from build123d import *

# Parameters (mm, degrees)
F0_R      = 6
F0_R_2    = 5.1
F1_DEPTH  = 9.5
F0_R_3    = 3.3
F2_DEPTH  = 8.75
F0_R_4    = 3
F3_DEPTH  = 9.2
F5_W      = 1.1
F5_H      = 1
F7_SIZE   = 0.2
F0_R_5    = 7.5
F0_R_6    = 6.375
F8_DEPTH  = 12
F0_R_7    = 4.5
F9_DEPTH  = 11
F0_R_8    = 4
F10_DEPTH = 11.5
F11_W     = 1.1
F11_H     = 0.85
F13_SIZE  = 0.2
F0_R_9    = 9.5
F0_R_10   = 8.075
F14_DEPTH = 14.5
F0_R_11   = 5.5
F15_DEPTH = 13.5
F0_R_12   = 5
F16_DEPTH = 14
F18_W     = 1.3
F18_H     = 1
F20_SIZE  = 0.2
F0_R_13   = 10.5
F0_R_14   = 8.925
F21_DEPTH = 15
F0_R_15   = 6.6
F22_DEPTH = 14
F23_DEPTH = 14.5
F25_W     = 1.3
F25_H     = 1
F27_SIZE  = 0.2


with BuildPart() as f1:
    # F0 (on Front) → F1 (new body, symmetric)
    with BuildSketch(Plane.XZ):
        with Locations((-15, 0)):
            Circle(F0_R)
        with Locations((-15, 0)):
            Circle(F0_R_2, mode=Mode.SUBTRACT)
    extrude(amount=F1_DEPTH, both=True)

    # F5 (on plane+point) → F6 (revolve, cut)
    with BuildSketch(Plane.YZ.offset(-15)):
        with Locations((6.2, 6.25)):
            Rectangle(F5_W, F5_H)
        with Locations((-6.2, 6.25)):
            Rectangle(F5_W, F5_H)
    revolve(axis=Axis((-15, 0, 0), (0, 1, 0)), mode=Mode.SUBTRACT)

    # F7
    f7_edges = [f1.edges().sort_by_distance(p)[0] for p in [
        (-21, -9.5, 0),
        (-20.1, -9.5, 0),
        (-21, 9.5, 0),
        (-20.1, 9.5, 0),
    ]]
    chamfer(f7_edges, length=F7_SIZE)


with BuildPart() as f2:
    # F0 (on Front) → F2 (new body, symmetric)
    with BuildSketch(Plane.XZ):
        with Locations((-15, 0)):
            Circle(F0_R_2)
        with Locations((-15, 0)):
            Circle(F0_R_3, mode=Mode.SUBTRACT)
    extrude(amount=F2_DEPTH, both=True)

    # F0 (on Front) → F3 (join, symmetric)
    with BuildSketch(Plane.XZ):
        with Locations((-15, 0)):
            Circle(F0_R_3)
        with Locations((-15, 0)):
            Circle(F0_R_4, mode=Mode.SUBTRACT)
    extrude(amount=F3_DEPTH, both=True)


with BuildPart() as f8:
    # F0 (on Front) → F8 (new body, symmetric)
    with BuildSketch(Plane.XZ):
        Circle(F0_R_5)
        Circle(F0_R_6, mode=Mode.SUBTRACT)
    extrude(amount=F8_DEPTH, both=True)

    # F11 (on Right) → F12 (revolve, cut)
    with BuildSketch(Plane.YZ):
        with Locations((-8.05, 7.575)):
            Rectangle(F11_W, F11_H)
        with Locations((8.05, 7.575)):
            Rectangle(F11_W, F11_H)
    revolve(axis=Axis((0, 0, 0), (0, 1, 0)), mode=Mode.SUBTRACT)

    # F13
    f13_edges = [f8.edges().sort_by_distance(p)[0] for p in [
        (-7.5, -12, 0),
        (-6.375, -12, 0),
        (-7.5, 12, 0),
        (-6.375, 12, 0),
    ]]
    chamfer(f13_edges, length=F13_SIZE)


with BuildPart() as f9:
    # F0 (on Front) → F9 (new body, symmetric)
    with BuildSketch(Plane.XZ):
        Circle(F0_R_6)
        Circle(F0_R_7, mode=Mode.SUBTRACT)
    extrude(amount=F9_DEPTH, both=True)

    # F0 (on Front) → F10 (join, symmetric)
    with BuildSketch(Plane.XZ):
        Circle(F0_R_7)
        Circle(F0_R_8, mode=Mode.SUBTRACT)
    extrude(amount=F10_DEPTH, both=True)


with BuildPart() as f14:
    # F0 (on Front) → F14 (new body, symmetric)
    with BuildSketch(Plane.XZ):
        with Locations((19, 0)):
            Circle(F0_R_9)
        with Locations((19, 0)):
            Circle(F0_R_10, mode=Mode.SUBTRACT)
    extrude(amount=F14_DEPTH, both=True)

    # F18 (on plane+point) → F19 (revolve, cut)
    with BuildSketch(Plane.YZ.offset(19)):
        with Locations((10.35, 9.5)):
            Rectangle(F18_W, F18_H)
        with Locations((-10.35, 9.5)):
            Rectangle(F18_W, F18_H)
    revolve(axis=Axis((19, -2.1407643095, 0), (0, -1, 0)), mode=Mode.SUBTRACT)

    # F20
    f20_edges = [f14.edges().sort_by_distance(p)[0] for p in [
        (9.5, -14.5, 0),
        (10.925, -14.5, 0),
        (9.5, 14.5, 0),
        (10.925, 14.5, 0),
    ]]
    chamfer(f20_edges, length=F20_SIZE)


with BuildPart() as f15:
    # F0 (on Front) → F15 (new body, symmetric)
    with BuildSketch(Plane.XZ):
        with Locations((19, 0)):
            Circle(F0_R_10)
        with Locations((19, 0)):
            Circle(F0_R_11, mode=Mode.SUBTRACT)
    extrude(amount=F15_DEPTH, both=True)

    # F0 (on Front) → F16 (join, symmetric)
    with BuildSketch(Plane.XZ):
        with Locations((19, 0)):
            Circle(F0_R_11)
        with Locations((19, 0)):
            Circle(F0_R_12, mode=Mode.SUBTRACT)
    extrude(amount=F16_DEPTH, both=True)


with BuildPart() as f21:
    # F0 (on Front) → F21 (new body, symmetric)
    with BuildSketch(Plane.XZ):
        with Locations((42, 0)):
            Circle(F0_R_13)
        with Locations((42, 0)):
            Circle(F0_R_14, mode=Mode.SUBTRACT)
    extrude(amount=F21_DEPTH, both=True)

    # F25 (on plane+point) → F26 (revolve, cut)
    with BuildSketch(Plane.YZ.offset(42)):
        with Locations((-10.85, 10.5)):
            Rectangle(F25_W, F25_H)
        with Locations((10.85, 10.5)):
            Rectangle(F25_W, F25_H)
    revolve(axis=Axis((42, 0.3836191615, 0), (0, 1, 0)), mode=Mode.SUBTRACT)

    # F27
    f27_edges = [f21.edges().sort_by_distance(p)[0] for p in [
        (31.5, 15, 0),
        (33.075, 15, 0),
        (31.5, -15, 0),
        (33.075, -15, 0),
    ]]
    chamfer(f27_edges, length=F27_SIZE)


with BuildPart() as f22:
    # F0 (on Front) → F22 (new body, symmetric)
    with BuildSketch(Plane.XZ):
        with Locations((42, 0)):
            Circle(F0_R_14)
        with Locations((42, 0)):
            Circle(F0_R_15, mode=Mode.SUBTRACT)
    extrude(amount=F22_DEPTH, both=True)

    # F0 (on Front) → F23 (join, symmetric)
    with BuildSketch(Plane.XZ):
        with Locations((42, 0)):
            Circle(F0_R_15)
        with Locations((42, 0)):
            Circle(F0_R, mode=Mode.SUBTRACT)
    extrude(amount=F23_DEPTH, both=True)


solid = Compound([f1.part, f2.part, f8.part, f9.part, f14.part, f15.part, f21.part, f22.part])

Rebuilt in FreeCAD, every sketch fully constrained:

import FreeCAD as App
import Part
import Sketcher


def edges_at(feature, points):
    """Names of the edges that pass closest to the given points."""
    edges = feature.Shape.Edges
    near = lambda p: min(range(len(edges)), key=lambda i: edges[i].distToShape(Part.Vertex(*p))[0])
    return sorted({f"Edge{near(p) + 1}" for p in points})


def add_polygon(sketch, points):
    """Adds a closed chain of lines whose ends are joined by coincident constraints."""
    first, n = sketch.GeometryCount, len(points)
    for a, b in zip(points, points[1:] + points[:1]):
        sketch.addGeometry(Part.LineSegment(App.Vector(*a, 0), App.Vector(*b, 0)), False)
    for i in range(n):
        sketch.addConstraint(Sketcher.Constraint("Coincident", first + i, 2, first + (i + 1) % n, 1))

doc = App.newDocument("Part")
body = doc.addObject("PartDesign::Body", "Body")

# Sketch on XZ plane
sketch1 = doc.addObject("Sketcher::SketchObject", "Sketch")
body.addObject(sketch1)
sketch1.AttachmentSupport = (doc.XZ_Plane, [""])
sketch1.MapMode = "FlatFace"
sketch1.addGeometry(Part.Circle(App.Vector(-15, 0, 0), App.Vector(0, 0, 1), 6), False)
sketch1.addGeometry(Part.Circle(App.Vector(-15, 0, 0), App.Vector(0, 0, 1), 5), False)
sketch1.addConstraint(Sketcher.Constraint("Coincident", 1, 3, 0, 3))
sketch1.addConstraint(Sketcher.Constraint("PointOnObject", 0, 3, -1))
sketch1.addConstraint(Sketcher.Constraint("Diameter", 0, 12.0))
sketch1.addConstraint(Sketcher.Constraint("Diameter", 1, 10.2))
sketch1.addConstraint(Sketcher.Constraint("DistanceX", 0, 3, -1, 1, 15.0))
pad1 = doc.addObject("PartDesign::Pad", "Pad")
body.addObject(pad1)
pad1.Profile = sketch1
pad1.Length = 19
pad1.Midplane = True

# Sketch on YZ plane
sketch2 = doc.addObject("Sketcher::SketchObject", "Sketch001")
body.addObject(sketch2)
sketch2.AttachmentSupport = (doc.YZ_Plane, [""])
sketch2.MapMode = "FlatFace"
sketch2.AttachmentOffset = App.Placement(App.Vector(0, 0, -15), App.Rotation())
add_polygon(sketch2, [(5.7, 6.8), (5.7, 5.8), (6.8, 5.8), (6.8, 6.8)])  # lines 0-3
add_polygon(sketch2, [(-6.8, 6.8), (-6.8, 5.8), (-5.7, 5.8), (-5.7, 6.8)])  # lines 4-7
sketch2.addConstraint(Sketcher.Constraint("Vertical", 0))
sketch2.addConstraint(Sketcher.Constraint("Horizontal", 1))
sketch2.addConstraint(Sketcher.Constraint("Vertical", 2))
sketch2.addConstraint(Sketcher.Constraint("Horizontal", 3))
sketch2.addConstraint(Sketcher.Constraint("Vertical", 4))
sketch2.addConstraint(Sketcher.Constraint("Horizontal", 5))
sketch2.addConstraint(Sketcher.Constraint("Vertical", 6))
sketch2.addConstraint(Sketcher.Constraint("Horizontal", 7))
sketch2.addConstraint(Sketcher.Constraint("Symmetric", 1, 2, 4, 2, -2))
sketch2.addConstraint(Sketcher.Constraint("Symmetric", 3, 2, 6, 2, -2))
sketch2.addConstraint(Sketcher.Constraint("DistanceY", 0, 2, 0, 1, 1.0))
sketch2.addConstraint(Sketcher.Constraint("DistanceX", 1, 1, 1, 2, 1.1))
sketch2.addConstraint(Sketcher.Constraint("DistanceX", 4, 2, 0, 2, 12.4))
sketch2.addConstraint(Sketcher.Constraint("DistanceY", -1, 1, 0, 2, 5.75))
groove = doc.addObject("PartDesign::Groove", "Groove")
body.addObject(groove)
groove.Profile = sketch2
groove.ReferenceAxis = (sketch2, ["H_Axis"])
groove.Angle = 360
doc.recompute()

chamfer = doc.addObject("PartDesign::Chamfer", "Chamfer")
body.addObject(chamfer)
chamfer.Base = (groove, edges_at(groove, [
    (-21, -9.5, 0),
    (-20.1, -9.5, 0),
    (-21, 9.5, 0),
    (-20.1, 9.5, 0),
]))
chamfer.Size = 0.2
body2 = doc.addObject("PartDesign::Body", "Body001")

# Sketch on XZ plane
sketch3 = doc.addObject("Sketcher::SketchObject", "Sketch002")
body2.addObject(sketch3)
sketch3.AttachmentSupport = (doc.getObject("XZ_Plane001"), [""])
sketch3.MapMode = "FlatFace"
sketch3.addGeometry(Part.Circle(App.Vector(-15, 0, 0), App.Vector(0, 0, 1), 5.1), False)
sketch3.addGeometry(Part.Circle(App.Vector(-15, 0, 0), App.Vector(0, 0, 1), 3.3), False)
sketch3.addConstraint(Sketcher.Constraint("Coincident", 1, 3, 0, 3))
sketch3.addConstraint(Sketcher.Constraint("PointOnObject", 0, 3, -1))
sketch3.addConstraint(Sketcher.Constraint("Diameter", 0, 10.2))
sketch3.addConstraint(Sketcher.Constraint("Diameter", 1, 6.6))
sketch3.addConstraint(Sketcher.Constraint("DistanceX", 0, 3, -1, 1, 15.0))
pad2 = doc.addObject("PartDesign::Pad", "Pad001")
body2.addObject(pad2)
pad2.Profile = sketch3
pad2.Length = 17.5
pad2.Midplane = True

# Sketch on XZ plane
sketch4 = doc.addObject("Sketcher::SketchObject", "Sketch003")
body2.addObject(sketch4)
sketch4.AttachmentSupport = (doc.getObject("XZ_Plane001"), [""])
sketch4.MapMode = "FlatFace"
sketch4.addGeometry(Part.Circle(App.Vector(-15, 0, 0), App.Vector(0, 0, 1), 3.3), False)
sketch4.addGeometry(Part.Circle(App.Vector(-15, 0, 0), App.Vector(0, 0, 1), 3), False)
sketch4.addConstraint(Sketcher.Constraint("Coincident", 1, 3, 0, 3))
sketch4.addConstraint(Sketcher.Constraint("PointOnObject", 0, 3, -1))
sketch4.addConstraint(Sketcher.Constraint("Diameter", 1, 6.0))
sketch4.addConstraint(Sketcher.Constraint("Diameter", 0, 6.6))
sketch4.addConstraint(Sketcher.Constraint("DistanceX", 0, 3, -1, 1, 15.0))
pad3 = doc.addObject("PartDesign::Pad", "Pad002")
body2.addObject(pad3)
pad3.Profile = sketch4
pad3.Length = 18.4
pad3.Midplane = True
body3 = doc.addObject("PartDesign::Body", "Body002")

# Sketch on XZ plane
sketch5 = doc.addObject("Sketcher::SketchObject", "Sketch004")
body3.addObject(sketch5)
sketch5.AttachmentSupport = (doc.getObject("XZ_Plane002"), [""])
sketch5.MapMode = "FlatFace"
sketch5.addGeometry(Part.Circle(App.Vector(0, 0, 0), App.Vector(0, 0, 1), 8), False)
sketch5.addGeometry(Part.Circle(App.Vector(0, 0, 0), App.Vector(0, 0, 1), 6), False)
sketch5.addConstraint(Sketcher.Constraint("Coincident", 0, 3, -1, 1))
sketch5.addConstraint(Sketcher.Constraint("Coincident", 1, 3, -1, 1))
sketch5.addConstraint(Sketcher.Constraint("Diameter", 0, 15.0))
sketch5.addConstraint(Sketcher.Constraint("Diameter", 1, 12.75))
pad4 = doc.addObject("PartDesign::Pad", "Pad003")
body3.addObject(pad4)
pad4.Profile = sketch5
pad4.Length = 24
pad4.Midplane = True

# Sketch on YZ plane
sketch6 = doc.addObject("Sketcher::SketchObject", "Sketch005")
body3.addObject(sketch6)
sketch6.AttachmentSupport = (doc.getObject("YZ_Plane002"), [""])
sketch6.MapMode = "FlatFace"
add_polygon(sketch6, [(-8.6, 8), (-8.6, 7.2), (-7.5, 7.2), (-7.5, 8)])  # lines 0-3
add_polygon(sketch6, [(7.5, 8), (7.5, 7.2), (8.6, 7.2), (8.6, 8)])  # lines 4-7
sketch6.addConstraint(Sketcher.Constraint("Vertical", 0))
sketch6.addConstraint(Sketcher.Constraint("Horizontal", 1))
sketch6.addConstraint(Sketcher.Constraint("Vertical", 2))
sketch6.addConstraint(Sketcher.Constraint("Horizontal", 3))
sketch6.addConstraint(Sketcher.Constraint("Vertical", 4))
sketch6.addConstraint(Sketcher.Constraint("Horizontal", 5))
sketch6.addConstraint(Sketcher.Constraint("Vertical", 6))
sketch6.addConstraint(Sketcher.Constraint("Horizontal", 7))
sketch6.addConstraint(Sketcher.Constraint("Symmetric", 1, 2, 4, 2, -2))
sketch6.addConstraint(Sketcher.Constraint("Symmetric", 3, 2, 6, 2, -2))
sketch6.addConstraint(Sketcher.Constraint("DistanceX", 1, 1, 1, 2, 1.1))
sketch6.addConstraint(Sketcher.Constraint("DistanceY", -1, 1, 2, 2, 8.0))
sketch6.addConstraint(Sketcher.Constraint("DistanceX", 1, 2, 4, 2, 15.0))
sketch6.addConstraint(Sketcher.Constraint("DistanceY", 0, 2, 0, 1, 0.85))
groove2 = doc.addObject("PartDesign::Groove", "Groove001")
body3.addObject(groove2)
groove2.Profile = sketch6
groove2.ReferenceAxis = (sketch6, ["H_Axis"])
groove2.Angle = 360
doc.recompute()

chamfer2 = doc.addObject("PartDesign::Chamfer", "Chamfer001")
body3.addObject(chamfer2)
chamfer2.Base = (groove2, edges_at(groove2, [
    (-7.5, -12, 0),
    (-6.375, -12, 0),
    (-7.5, 12, 0),
    (-6.375, 12, 0),
]))
chamfer2.Size = 0.2
body4 = doc.addObject("PartDesign::Body", "Body003")

# Sketch on XZ plane
sketch7 = doc.addObject("Sketcher::SketchObject", "Sketch006")
body4.addObject(sketch7)
sketch7.AttachmentSupport = (doc.getObject("XZ_Plane003"), [""])
sketch7.MapMode = "FlatFace"
sketch7.addGeometry(Part.Circle(App.Vector(0, 0, 0), App.Vector(0, 0, 1), 6.4), False)
sketch7.addGeometry(Part.Circle(App.Vector(0, 0, 0), App.Vector(0, 0, 1), 4.5), False)
sketch7.addConstraint(Sketcher.Constraint("Coincident", 0, 3, -1, 1))
sketch7.addConstraint(Sketcher.Constraint("Coincident", 1, 3, -1, 1))
sketch7.addConstraint(Sketcher.Constraint("Diameter", 1, 9.0))
sketch7.addConstraint(Sketcher.Constraint("Diameter", 0, 12.75))
pad5 = doc.addObject("PartDesign::Pad", "Pad004")
body4.addObject(pad5)
pad5.Profile = sketch7
pad5.Length = 22
pad5.Midplane = True

# Sketch on XZ plane
sketch8 = doc.addObject("Sketcher::SketchObject", "Sketch007")
body4.addObject(sketch8)
sketch8.AttachmentSupport = (doc.getObject("XZ_Plane003"), [""])
sketch8.MapMode = "FlatFace"
sketch8.addGeometry(Part.Circle(App.Vector(0, 0, 0), App.Vector(0, 0, 1), 4.5), False)
sketch8.addGeometry(Part.Circle(App.Vector(0, 0, 0), App.Vector(0, 0, 1), 4), False)
sketch8.addConstraint(Sketcher.Constraint("Coincident", 0, 3, -1, 1))
sketch8.addConstraint(Sketcher.Constraint("Coincident", 1, 3, -1, 1))
sketch8.addConstraint(Sketcher.Constraint("Diameter", 0, 9.0))
sketch8.addConstraint(Sketcher.Constraint("Diameter", 1, 8.0))
pad6 = doc.addObject("PartDesign::Pad", "Pad005")
body4.addObject(pad6)
pad6.Profile = sketch8
pad6.Length = 23
pad6.Midplane = True
body5 = doc.addObject("PartDesign::Body", "Body004")

# Sketch on XZ plane
sketch9 = doc.addObject("Sketcher::SketchObject", "Sketch008")
body5.addObject(sketch9)
sketch9.AttachmentSupport = (doc.getObject("XZ_Plane004"), [""])
sketch9.MapMode = "FlatFace"
sketch9.addGeometry(Part.Circle(App.Vector(19, 0, 0), App.Vector(0, 0, 1), 10), False)
sketch9.addGeometry(Part.Circle(App.Vector(19, 0, 0), App.Vector(0, 0, 1), 8), False)
sketch9.addConstraint(Sketcher.Constraint("Coincident", 1, 3, 0, 3))
sketch9.addConstraint(Sketcher.Constraint("PointOnObject", 0, 3, -1))
sketch9.addConstraint(Sketcher.Constraint("Diameter", 0, 19.0))
sketch9.addConstraint(Sketcher.Constraint("Diameter", 1, 16.15))
sketch9.addConstraint(Sketcher.Constraint("DistanceX", -1, 1, 0, 3, 19.0))
pad7 = doc.addObject("PartDesign::Pad", "Pad006")
body5.addObject(pad7)
pad7.Profile = sketch9
pad7.Length = 29
pad7.Midplane = True

# Sketch on YZ plane
sketch10 = doc.addObject("Sketcher::SketchObject", "Sketch009")
body5.addObject(sketch10)
sketch10.AttachmentSupport = (doc.getObject("YZ_Plane004"), [""])
sketch10.MapMode = "FlatFace"
sketch10.AttachmentOffset = App.Placement(App.Vector(0, 0, 19), App.Rotation())
add_polygon(sketch10, [(9.7, 10), (9.7, 9), (11, 9), (11, 10)])  # lines 0-3
add_polygon(sketch10, [(-11, 10), (-11, 9), (-9.7, 9), (-9.7, 10)])  # lines 4-7
sketch10.addConstraint(Sketcher.Constraint("Vertical", 0))
sketch10.addConstraint(Sketcher.Constraint("Horizontal", 1))
sketch10.addConstraint(Sketcher.Constraint("Vertical", 2))
sketch10.addConstraint(Sketcher.Constraint("Horizontal", 3))
sketch10.addConstraint(Sketcher.Constraint("Vertical", 4))
sketch10.addConstraint(Sketcher.Constraint("Horizontal", 5))
sketch10.addConstraint(Sketcher.Constraint("Vertical", 6))
sketch10.addConstraint(Sketcher.Constraint("Horizontal", 7))
sketch10.addConstraint(Sketcher.Constraint("Symmetric", 1, 2, 4, 2, -2))
sketch10.addConstraint(Sketcher.Constraint("Symmetric", 3, 2, 6, 2, -2))
sketch10.addConstraint(Sketcher.Constraint("DistanceY", 0, 2, 0, 1, 1.0))
sketch10.addConstraint(Sketcher.Constraint("DistanceX", 1, 1, 1, 2, 1.3))
sketch10.addConstraint(Sketcher.Constraint("DistanceY", -1, 1, 0, 2, 9.0))
sketch10.addConstraint(Sketcher.Constraint("DistanceX", -1, 1, 1, 2, 11.0))
groove3 = doc.addObject("PartDesign::Groove", "Groove002")
body5.addObject(groove3)
groove3.Profile = sketch10
groove3.ReferenceAxis = (sketch10, ["H_Axis"])
groove3.Angle = 360
doc.recompute()

chamfer3 = doc.addObject("PartDesign::Chamfer", "Chamfer002")
body5.addObject(chamfer3)
chamfer3.Base = (groove3, edges_at(groove3, [
    (9.5, -14.5, 0),
    (10.925, -14.5, 0),
    (9.5, 14.5, 0),
    (10.925, 14.5, 0),
]))
chamfer3.Size = 0.2
body6 = doc.addObject("PartDesign::Body", "Body005")

# Sketch on XZ plane
sketch11 = doc.addObject("Sketcher::SketchObject", "Sketch010")
body6.addObject(sketch11)
sketch11.AttachmentSupport = (doc.getObject("XZ_Plane005"), [""])
sketch11.MapMode = "FlatFace"
sketch11.addGeometry(Part.Circle(App.Vector(19, 0, 0), App.Vector(0, 0, 1), 8), False)
sketch11.addGeometry(Part.Circle(App.Vector(19, 0, 0), App.Vector(0, 0, 1), 6), False)
sketch11.addConstraint(Sketcher.Constraint("Coincident", 1, 3, 0, 3))
sketch11.addConstraint(Sketcher.Constraint("PointOnObject", 0, 3, -1))
sketch11.addConstraint(Sketcher.Constraint("Diameter", 1, 11.0))
sketch11.addConstraint(Sketcher.Constraint("Diameter", 0, 16.15))
sketch11.addConstraint(Sketcher.Constraint("DistanceX", -1, 1, 0, 3, 19.0))
pad8 = doc.addObject("PartDesign::Pad", "Pad007")
body6.addObject(pad8)
pad8.Profile = sketch11
pad8.Length = 27
pad8.Midplane = True

# Sketch on XZ plane
sketch12 = doc.addObject("Sketcher::SketchObject", "Sketch011")
body6.addObject(sketch12)
sketch12.AttachmentSupport = (doc.getObject("XZ_Plane005"), [""])
sketch12.MapMode = "FlatFace"
sketch12.addGeometry(Part.Circle(App.Vector(19, 0, 0), App.Vector(0, 0, 1), 6), False)
sketch12.addGeometry(Part.Circle(App.Vector(19, 0, 0), App.Vector(0, 0, 1), 5), False)
sketch12.addConstraint(Sketcher.Constraint("Coincident", 1, 3, 0, 3))
sketch12.addConstraint(Sketcher.Constraint("PointOnObject", 0, 3, -1))
sketch12.addConstraint(Sketcher.Constraint("Diameter", 0, 11.0))
sketch12.addConstraint(Sketcher.Constraint("Diameter", 1, 10.0))
sketch12.addConstraint(Sketcher.Constraint("DistanceX", -1, 1, 0, 3, 19.0))
pad9 = doc.addObject("PartDesign::Pad", "Pad008")
body6.addObject(pad9)
pad9.Profile = sketch12
pad9.Length = 28
pad9.Midplane = True
body7 = doc.addObject("PartDesign::Body", "Body006")

# Sketch on XZ plane
sketch13 = doc.addObject("Sketcher::SketchObject", "Sketch012")
body7.addObject(sketch13)
sketch13.AttachmentSupport = (doc.getObject("XZ_Plane006"), [""])
sketch13.MapMode = "FlatFace"
sketch13.addGeometry(Part.Circle(App.Vector(42, 0, 0), App.Vector(0, 0, 1), 10), False)
sketch13.addGeometry(Part.Circle(App.Vector(42, 0, 0), App.Vector(0, 0, 1), 9), False)
sketch13.addConstraint(Sketcher.Constraint("Coincident", 1, 3, 0, 3))
sketch13.addConstraint(Sketcher.Constraint("PointOnObject", 0, 3, -1))
sketch13.addConstraint(Sketcher.Constraint("Diameter", 0, 21.0))
sketch13.addConstraint(Sketcher.Constraint("Diameter", 1, 17.85))
sketch13.addConstraint(Sketcher.Constraint("DistanceX", -1, 1, 0, 3, 42.0))
pad10 = doc.addObject("PartDesign::Pad", "Pad009")
body7.addObject(pad10)
pad10.Profile = sketch13
pad10.Length = 30
pad10.Midplane = True

# Sketch on YZ plane
sketch14 = doc.addObject("Sketcher::SketchObject", "Sketch013")
body7.addObject(sketch14)
sketch14.AttachmentSupport = (doc.getObject("YZ_Plane006"), [""])
sketch14.MapMode = "FlatFace"
sketch14.AttachmentOffset = App.Placement(App.Vector(0, 0, 42), App.Rotation())
add_polygon(sketch14, [(-11.5, 11), (-11.5, 10), (-10.2, 10), (-10.2, 11)])  # lines 0-3
add_polygon(sketch14, [(10.2, 11), (10.2, 10), (11.5, 10), (11.5, 11)])  # lines 4-7
sketch14.addConstraint(Sketcher.Constraint("Vertical", 0))
sketch14.addConstraint(Sketcher.Constraint("Horizontal", 1))
sketch14.addConstraint(Sketcher.Constraint("Vertical", 2))
sketch14.addConstraint(Sketcher.Constraint("Horizontal", 3))
sketch14.addConstraint(Sketcher.Constraint("Vertical", 4))
sketch14.addConstraint(Sketcher.Constraint("Horizontal", 5))
sketch14.addConstraint(Sketcher.Constraint("Vertical", 6))
sketch14.addConstraint(Sketcher.Constraint("Horizontal", 7))
sketch14.addConstraint(Sketcher.Constraint("Symmetric", 1, 2, 4, 2, -2))
sketch14.addConstraint(Sketcher.Constraint("Symmetric", 3, 2, 6, 2, -2))
sketch14.addConstraint(Sketcher.Constraint("DistanceY", 0, 2, 0, 1, 1.0))
sketch14.addConstraint(Sketcher.Constraint("DistanceX", 1, 1, 1, 2, 1.3))
sketch14.addConstraint(Sketcher.Constraint("DistanceY", -1, 1, 0, 2, 10.0))
sketch14.addConstraint(Sketcher.Constraint("DistanceX", 0, 2, 5, 2, 23.0))
groove4 = doc.addObject("PartDesign::Groove", "Groove003")
body7.addObject(groove4)
groove4.Profile = sketch14
groove4.ReferenceAxis = (sketch14, ["H_Axis"])
groove4.Angle = 360
doc.recompute()

chamfer4 = doc.addObject("PartDesign::Chamfer", "Chamfer003")
body7.addObject(chamfer4)
chamfer4.Base = (groove4, edges_at(groove4, [
    (31.5, 15, 0),
    (33.075, 15, 0),
    (31.5, -15, 0),
    (33.075, -15, 0),
]))
chamfer4.Size = 0.2
body8 = doc.addObject("PartDesign::Body", "Body007")

# Sketch on XZ plane
sketch15 = doc.addObject("Sketcher::SketchObject", "Sketch014")
body8.addObject(sketch15)
sketch15.AttachmentSupport = (doc.getObject("XZ_Plane007"), [""])
sketch15.MapMode = "FlatFace"
sketch15.addGeometry(Part.Circle(App.Vector(42, 0, 0), App.Vector(0, 0, 1), 9), False)
sketch15.addGeometry(Part.Circle(App.Vector(42, 0, 0), App.Vector(0, 0, 1), 7), False)
sketch15.addConstraint(Sketcher.Constraint("Coincident", 1, 3, 0, 3))
sketch15.addConstraint(Sketcher.Constraint("PointOnObject", 0, 3, -1))
sketch15.addConstraint(Sketcher.Constraint("Diameter", 1, 13.2))
sketch15.addConstraint(Sketcher.Constraint("Diameter", 0, 17.85))
sketch15.addConstraint(Sketcher.Constraint("DistanceX", -1, 1, 0, 3, 42.0))
pad11 = doc.addObject("PartDesign::Pad", "Pad010")
body8.addObject(pad11)
pad11.Profile = sketch15
pad11.Length = 28
pad11.Midplane = True

# Sketch on XZ plane
sketch16 = doc.addObject("Sketcher::SketchObject", "Sketch015")
body8.addObject(sketch16)
sketch16.AttachmentSupport = (doc.getObject("XZ_Plane007"), [""])
sketch16.MapMode = "FlatFace"
sketch16.addGeometry(Part.Circle(App.Vector(42, 0, 0), App.Vector(0, 0, 1), 7), False)
sketch16.addGeometry(Part.Circle(App.Vector(42, 0, 0), App.Vector(0, 0, 1), 6), False)
sketch16.addConstraint(Sketcher.Constraint("Coincident", 1, 3, 0, 3))
sketch16.addConstraint(Sketcher.Constraint("PointOnObject", 0, 3, -1))
sketch16.addConstraint(Sketcher.Constraint("Diameter", 1, 12.0))
sketch16.addConstraint(Sketcher.Constraint("Diameter", 0, 13.2))
sketch16.addConstraint(Sketcher.Constraint("DistanceX", -1, 1, 0, 3, 42.0))
pad12 = doc.addObject("PartDesign::Pad", "Pad011")
body8.addObject(pad12)
pad12.Profile = sketch16
pad12.Length = 29
pad12.Midplane = True

doc.recompute()
